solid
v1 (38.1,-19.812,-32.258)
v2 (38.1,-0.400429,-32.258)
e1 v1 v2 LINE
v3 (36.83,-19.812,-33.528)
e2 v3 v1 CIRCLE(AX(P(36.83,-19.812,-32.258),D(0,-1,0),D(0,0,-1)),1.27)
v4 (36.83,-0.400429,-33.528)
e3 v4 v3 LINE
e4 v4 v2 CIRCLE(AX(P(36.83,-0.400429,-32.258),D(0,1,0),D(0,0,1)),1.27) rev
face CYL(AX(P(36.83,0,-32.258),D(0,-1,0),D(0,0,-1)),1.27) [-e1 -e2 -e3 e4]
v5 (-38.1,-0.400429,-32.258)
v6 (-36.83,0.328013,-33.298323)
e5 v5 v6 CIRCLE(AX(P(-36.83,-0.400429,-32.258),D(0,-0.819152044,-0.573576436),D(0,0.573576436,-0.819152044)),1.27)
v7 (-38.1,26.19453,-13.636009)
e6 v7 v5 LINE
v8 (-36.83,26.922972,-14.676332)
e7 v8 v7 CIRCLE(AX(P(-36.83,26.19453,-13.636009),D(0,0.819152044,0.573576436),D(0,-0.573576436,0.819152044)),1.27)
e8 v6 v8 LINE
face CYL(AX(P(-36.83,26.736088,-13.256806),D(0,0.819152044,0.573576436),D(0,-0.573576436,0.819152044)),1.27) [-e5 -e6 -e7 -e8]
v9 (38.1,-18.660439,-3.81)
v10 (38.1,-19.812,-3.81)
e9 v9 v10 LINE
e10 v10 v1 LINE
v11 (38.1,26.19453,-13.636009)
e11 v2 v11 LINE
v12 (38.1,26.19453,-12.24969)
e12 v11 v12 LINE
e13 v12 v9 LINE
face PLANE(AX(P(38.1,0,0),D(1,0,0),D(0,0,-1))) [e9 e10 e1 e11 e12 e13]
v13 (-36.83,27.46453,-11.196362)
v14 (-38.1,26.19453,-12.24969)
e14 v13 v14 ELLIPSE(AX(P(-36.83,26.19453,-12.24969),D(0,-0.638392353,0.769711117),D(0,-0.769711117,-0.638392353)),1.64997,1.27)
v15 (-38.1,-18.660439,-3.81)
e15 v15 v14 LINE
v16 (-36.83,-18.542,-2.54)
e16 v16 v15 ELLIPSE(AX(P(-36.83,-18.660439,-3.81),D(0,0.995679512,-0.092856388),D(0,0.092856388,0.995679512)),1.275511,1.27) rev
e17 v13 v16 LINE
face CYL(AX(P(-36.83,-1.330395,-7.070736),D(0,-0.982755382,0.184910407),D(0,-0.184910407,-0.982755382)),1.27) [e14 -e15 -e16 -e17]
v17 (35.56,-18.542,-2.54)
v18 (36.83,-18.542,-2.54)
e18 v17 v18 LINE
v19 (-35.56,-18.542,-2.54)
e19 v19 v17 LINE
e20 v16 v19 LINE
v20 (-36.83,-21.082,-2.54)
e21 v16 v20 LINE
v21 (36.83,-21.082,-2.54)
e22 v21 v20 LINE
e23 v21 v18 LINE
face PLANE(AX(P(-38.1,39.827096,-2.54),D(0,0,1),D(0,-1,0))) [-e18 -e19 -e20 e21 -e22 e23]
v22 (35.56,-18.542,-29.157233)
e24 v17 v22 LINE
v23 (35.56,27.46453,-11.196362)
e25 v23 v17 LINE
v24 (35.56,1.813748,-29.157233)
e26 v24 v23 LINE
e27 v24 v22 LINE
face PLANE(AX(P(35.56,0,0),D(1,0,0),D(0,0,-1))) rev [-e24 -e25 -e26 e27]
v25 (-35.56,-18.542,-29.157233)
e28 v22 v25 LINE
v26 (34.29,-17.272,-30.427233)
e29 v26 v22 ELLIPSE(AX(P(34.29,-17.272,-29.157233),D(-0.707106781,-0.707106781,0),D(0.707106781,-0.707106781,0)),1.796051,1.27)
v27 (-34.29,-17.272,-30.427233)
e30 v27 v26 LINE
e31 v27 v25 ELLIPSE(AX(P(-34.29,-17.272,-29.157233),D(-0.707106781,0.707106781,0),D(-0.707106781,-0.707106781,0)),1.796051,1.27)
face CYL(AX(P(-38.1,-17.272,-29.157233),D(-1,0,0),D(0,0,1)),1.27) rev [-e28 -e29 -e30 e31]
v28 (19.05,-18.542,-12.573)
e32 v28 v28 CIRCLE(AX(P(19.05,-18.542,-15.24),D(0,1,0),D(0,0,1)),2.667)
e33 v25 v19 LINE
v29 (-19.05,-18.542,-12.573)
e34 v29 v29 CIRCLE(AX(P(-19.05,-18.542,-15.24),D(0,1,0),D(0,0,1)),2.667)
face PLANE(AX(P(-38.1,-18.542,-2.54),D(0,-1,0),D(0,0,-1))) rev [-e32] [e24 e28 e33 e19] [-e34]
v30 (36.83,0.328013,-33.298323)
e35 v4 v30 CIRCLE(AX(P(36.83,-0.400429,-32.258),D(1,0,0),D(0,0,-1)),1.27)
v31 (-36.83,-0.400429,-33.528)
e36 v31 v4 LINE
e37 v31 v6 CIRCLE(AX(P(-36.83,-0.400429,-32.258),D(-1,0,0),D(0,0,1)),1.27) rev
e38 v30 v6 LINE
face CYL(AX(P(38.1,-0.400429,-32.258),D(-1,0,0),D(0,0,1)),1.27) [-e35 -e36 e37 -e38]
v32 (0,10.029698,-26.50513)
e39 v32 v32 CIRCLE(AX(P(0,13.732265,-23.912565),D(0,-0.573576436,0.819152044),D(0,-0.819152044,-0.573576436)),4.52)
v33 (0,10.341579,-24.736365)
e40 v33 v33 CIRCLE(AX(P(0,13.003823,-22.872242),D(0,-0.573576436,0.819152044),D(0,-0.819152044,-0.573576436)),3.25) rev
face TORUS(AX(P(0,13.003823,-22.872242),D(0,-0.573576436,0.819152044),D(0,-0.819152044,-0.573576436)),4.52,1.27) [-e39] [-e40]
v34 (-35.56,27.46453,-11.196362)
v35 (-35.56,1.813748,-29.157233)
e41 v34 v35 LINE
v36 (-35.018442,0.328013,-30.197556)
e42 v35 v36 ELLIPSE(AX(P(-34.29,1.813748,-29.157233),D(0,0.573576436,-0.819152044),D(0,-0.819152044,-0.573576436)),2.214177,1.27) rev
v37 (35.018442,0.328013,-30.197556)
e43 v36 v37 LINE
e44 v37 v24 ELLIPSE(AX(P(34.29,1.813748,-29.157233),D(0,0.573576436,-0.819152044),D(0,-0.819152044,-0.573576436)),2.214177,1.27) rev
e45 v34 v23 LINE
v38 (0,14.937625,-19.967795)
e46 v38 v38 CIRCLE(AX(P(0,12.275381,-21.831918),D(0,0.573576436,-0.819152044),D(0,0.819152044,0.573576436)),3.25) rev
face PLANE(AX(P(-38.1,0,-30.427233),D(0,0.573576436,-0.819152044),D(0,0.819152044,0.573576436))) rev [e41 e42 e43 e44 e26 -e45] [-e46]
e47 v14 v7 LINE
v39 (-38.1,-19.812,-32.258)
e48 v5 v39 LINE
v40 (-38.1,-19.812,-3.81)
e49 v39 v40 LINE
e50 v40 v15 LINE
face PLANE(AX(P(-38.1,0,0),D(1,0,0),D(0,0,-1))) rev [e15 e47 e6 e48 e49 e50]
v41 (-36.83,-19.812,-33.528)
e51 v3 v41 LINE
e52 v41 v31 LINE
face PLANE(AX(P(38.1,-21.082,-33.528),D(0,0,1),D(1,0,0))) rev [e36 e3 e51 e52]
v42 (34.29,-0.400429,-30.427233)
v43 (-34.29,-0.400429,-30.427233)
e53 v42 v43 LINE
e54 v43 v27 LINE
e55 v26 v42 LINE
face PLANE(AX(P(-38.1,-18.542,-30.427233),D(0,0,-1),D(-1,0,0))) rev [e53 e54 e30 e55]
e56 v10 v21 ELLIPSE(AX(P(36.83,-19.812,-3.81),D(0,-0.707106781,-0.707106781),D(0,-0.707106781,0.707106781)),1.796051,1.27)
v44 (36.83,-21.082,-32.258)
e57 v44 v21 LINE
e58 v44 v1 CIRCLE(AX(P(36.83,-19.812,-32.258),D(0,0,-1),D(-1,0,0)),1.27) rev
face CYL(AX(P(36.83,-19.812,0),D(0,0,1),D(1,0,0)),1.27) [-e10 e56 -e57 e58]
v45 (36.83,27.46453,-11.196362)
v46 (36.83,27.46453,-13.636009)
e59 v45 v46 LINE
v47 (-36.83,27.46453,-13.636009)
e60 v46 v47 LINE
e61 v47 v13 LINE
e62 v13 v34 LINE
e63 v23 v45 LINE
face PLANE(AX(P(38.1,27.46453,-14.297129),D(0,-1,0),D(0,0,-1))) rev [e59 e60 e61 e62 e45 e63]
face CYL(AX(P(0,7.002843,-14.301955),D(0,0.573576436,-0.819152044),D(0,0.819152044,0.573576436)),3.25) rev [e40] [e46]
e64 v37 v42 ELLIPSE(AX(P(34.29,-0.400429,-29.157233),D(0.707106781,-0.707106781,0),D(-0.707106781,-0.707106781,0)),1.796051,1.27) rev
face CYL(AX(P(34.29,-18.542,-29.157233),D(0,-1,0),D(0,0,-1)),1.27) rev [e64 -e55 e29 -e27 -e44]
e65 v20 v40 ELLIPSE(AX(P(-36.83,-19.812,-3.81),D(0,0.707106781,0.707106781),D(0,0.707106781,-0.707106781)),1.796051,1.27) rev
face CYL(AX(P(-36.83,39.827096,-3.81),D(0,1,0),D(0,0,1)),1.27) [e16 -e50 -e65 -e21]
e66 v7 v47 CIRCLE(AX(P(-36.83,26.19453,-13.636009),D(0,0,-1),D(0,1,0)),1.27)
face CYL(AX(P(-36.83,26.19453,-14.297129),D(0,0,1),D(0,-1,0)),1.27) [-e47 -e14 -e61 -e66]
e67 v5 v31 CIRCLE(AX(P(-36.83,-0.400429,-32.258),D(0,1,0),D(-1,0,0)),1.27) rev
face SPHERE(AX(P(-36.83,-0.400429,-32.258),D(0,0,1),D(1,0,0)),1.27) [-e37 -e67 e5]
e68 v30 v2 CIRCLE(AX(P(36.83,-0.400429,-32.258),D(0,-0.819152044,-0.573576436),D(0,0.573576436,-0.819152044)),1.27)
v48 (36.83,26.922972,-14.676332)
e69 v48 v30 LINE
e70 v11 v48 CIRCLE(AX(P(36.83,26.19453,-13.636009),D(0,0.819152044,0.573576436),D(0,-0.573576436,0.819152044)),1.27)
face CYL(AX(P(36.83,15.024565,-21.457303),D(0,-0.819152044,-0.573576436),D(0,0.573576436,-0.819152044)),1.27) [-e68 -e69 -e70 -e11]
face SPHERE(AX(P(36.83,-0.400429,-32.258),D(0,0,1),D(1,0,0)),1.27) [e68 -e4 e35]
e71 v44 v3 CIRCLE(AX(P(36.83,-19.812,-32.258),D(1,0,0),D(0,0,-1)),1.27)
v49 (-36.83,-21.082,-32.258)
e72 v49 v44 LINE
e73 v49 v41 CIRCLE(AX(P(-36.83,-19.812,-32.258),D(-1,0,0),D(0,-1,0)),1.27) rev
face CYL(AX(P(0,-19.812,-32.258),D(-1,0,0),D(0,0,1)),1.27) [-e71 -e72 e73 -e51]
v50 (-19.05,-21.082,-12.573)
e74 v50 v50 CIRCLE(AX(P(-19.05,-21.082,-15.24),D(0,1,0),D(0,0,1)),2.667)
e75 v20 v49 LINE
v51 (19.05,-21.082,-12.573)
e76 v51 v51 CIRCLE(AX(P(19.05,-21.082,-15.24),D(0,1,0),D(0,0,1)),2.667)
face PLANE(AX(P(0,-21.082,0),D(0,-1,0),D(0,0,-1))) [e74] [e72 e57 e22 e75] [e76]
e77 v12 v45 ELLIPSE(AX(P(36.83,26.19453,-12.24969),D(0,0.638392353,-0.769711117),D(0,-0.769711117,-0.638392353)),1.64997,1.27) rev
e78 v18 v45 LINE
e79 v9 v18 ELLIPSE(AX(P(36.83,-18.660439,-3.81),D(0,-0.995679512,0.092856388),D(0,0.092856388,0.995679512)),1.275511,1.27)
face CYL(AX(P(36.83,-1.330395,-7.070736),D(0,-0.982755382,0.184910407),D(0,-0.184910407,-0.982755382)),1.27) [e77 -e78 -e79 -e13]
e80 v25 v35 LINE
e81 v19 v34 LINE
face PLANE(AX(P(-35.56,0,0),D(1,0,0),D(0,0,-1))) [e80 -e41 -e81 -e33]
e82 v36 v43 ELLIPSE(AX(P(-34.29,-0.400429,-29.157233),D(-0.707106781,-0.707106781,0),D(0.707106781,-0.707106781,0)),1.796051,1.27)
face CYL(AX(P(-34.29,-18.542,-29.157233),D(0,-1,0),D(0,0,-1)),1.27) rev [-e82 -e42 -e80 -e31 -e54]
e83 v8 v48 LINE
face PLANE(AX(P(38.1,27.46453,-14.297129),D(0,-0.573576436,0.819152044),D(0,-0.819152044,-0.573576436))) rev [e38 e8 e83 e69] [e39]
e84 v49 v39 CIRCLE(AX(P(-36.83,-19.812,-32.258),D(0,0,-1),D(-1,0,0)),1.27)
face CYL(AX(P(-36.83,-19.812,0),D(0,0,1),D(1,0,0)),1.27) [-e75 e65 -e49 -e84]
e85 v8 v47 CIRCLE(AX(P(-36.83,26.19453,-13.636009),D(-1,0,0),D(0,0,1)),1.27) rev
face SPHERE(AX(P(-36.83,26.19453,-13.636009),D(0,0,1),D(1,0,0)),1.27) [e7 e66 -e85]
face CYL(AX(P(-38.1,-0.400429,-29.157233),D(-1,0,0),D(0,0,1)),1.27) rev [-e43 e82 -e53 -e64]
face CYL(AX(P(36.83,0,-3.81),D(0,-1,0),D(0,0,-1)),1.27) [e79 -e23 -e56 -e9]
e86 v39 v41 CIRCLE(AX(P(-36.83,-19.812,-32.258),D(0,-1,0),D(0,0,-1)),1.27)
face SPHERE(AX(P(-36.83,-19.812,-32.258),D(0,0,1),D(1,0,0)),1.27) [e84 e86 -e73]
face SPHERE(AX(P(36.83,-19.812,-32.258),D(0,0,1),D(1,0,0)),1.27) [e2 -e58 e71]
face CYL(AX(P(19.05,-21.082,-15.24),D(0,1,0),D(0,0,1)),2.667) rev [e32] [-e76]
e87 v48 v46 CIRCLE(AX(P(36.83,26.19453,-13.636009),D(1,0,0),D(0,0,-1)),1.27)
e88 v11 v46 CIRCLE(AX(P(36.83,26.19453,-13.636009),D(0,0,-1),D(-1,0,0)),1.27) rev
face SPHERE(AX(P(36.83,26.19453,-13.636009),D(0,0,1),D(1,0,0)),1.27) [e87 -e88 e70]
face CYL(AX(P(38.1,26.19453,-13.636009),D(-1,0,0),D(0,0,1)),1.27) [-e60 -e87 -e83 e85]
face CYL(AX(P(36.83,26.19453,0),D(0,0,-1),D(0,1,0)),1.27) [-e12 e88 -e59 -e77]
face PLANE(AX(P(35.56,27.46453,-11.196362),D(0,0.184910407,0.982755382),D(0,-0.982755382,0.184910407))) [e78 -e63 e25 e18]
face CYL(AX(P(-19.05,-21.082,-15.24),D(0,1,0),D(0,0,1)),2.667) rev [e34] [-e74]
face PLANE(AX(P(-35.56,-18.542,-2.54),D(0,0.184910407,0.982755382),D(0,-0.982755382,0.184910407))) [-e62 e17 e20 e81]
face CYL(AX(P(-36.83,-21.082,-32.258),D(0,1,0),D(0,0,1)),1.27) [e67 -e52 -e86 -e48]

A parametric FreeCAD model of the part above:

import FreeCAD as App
import Part
import Sketcher
Q = App.Units.Quantity


def edges_at(feature, points):
    """Names of the edges that pass closest to the given points."""
    edges = feature.Shape.Edges
    near = lambda p: min(range(len(edges)), key=lambda i: edges[i].distToShape(Part.Vertex(*p))[0])
    return sorted({f"Edge{near(p) + 1}" for p in points})


def add_polygon(sketch, points):
    """Adds a closed chain of lines whose ends are joined by coincident constraints."""
    first, n = sketch.GeometryCount, len(points)
    for a, b in zip(points, points[1:] + points[:1]):
        sketch.addGeometry(Part.LineSegment(App.Vector(*a, 0), App.Vector(*b, 0)), False)
    for i in range(n):
        sketch.addConstraint(Sketcher.Constraint("Coincident", first + i, 2, first + (i + 1) % n, 1))

doc = App.newDocument("Part")
body = doc.addObject("PartDesign::Body", "Body")

sketch1 = doc.addObject("Sketcher::SketchObject", "Sketch")
body.addObject(sketch1)
sketch1.AttachmentSupport = (doc.YZ_Plane, [""])
sketch1.MapMode = "FlatFace"
add_polygon(sketch1, [(0, 0), (0, -34), (27, -14), (27, 0)])
sketch1.addConstraint([
    Sketcher.Constraint("Vertical", 0),
    Sketcher.Constraint("Vertical", 2),
    Sketcher.Constraint("Horizontal", 3),
    Sketcher.Constraint("Coincident", 3, 2, -1, 1),
    Sketcher.Constraint("Angle", 1, Q("35 deg")),
    Sketcher.Constraint("DistanceY", 0, 2, 0, 1, Q("1.32 in")),
    Sketcher.Constraint("Distance", 1, Q("1.32 in")),
])
pad1 = doc.addObject("PartDesign::Pad", "Pad")
body.addObject(pad1)
pad1.Profile = sketch1
pad1.Length = Q("3 in")
pad1.Midplane = True

sketch2 = doc.addObject("Sketcher::SketchObject", "Sketch001")
body.addObject(sketch2)
sketch2.AttachmentSupport = (doc.XZ_Plane, [""])
sketch2.MapMode = "FlatFace"
add_polygon(sketch2, [(-38, 0), (-38, -34), (38, -34), (38, 0)])
sketch2.addConstraint([
    Sketcher.Constraint("Vertical", 0),
    Sketcher.Constraint("Horizontal", 1),
    Sketcher.Constraint("Vertical", 2),
    Sketcher.Constraint("Horizontal", 3),
    Sketcher.Constraint("Symmetric", 2, 2, 3, 2, -1, 1),
    Sketcher.Constraint("DistanceX", 1, 1, 1, 2, Q("3 in")),
    Sketcher.Constraint("DistanceY", 0, 2, 0, 1, Q("1.32 in")),
])
pad2 = doc.addObject("PartDesign::Pad", "Pad001")
body.addObject(pad2)
pad2.Profile = sketch2
pad2.Length = Q("0.83 in")

sketch3 = doc.addObject("Sketcher::SketchObject", "Sketch002")
body.addObject(sketch3)
sketch3.AttachmentSupport = (doc.YZ_Plane, [""])
sketch3.MapMode = "FlatFace"
sketch3.AttachmentOffset = App.Placement(App.Vector(0, 0, 1.5 * 25.4), App.Rotation())
add_polygon(sketch3, [(40, -3), (-19, -3), (-19, -30), (0, -30)])
sketch3.addConstraint([
    Sketcher.Constraint("Horizontal", 0),
    Sketcher.Constraint("Vertical", 1),
    Sketcher.Constraint("Horizontal", 2),
    Sketcher.Constraint("PointOnObject", 2, 2, -2),
    Sketcher.Constraint("Angle", 3, Q("35 deg")),
    Sketcher.Constraint("DistanceX", 2, 1, 2, 2, Q("0.73 in")),
    Sketcher.Constraint("DistanceY", 0, 2, -1, 1, Q("0.1 in")),
    Sketcher.Constraint("DistanceX", 0, 2, 0, 1, Q("58.369096 mm")),
])
pocket1 = doc.addObject("PartDesign::Pocket", "Pocket")
body.addObject(pocket1)
pocket1.Profile = sketch3
pocket1.Type = "ThroughAll"

sketch4 = doc.addObject("Sketcher::SketchObject", "Sketch003")
body.addObject(sketch4)
sketch4.AttachmentSupport = (doc.XZ_Plane, [""])
sketch4.MapMode = "FlatFace"
sketch4.AttachmentOffset = App.Placement(App.Vector(0, 0, 0.73 * 25.4), App.Rotation())
sketch4.addGeometry([
    Part.Circle(App.Vector(19.1, -15.2, 0), App.Vector(0, 0, 1), 2.7),
    Part.Circle(App.Vector(-19.1, -15.2, 0), App.Vector(0, 0, 1), 2.7),
], False)
sketch4.addConstraint([
    Sketcher.Constraint("Equal", 0, 1),
    Sketcher.Constraint("Symmetric", 0, 3, 1, 3, -2),
    Sketcher.Constraint("Diameter", 0, Q("0.21 in")),
    Sketcher.Constraint("DistanceY", 0, 3, -1, 1, Q("0.6 in")),
    Sketcher.Constraint("DistanceX", 1, 3, 0, 3, Q("1.5 in")),
])
pocket2 = doc.addObject("PartDesign::Pocket", "Pocket001")
body.addObject(pocket2)
pocket2.Profile = sketch4
pocket2.Type = "ThroughAll"
pocket2.Reversed = True

sketch5 = doc.addObject("Sketcher::SketchObject", "Sketch004")
body.addObject(sketch5)
sketch5.Placement = App.Placement(App.Vector(0, 15.753007, -22.497626), App.Rotation(App.Vector(-1, 0, 0), App.Vector(0, 0.819152044, 0.573576436), App.Vector(0, 0.573576436, -0.819152044), "ZXY"))
sketch5.addGeometry(Part.Circle(App.Vector(0, -2.5, 0), App.Vector(0, 0, 1), 3.2), False)
sketch5.addConstraint([
    Sketcher.Constraint("PointOnObject", 0, 3, -2),
    Sketcher.Constraint("Diameter", 0, Q("6.5 mm")),
    Sketcher.Constraint("DistanceY", 0, 3, -1, 1, Q("2.466871 mm")),
])
pocket3 = doc.addObject("PartDesign::Pocket", "Pocket002")
body.addObject(pocket3)
pocket3.Profile = sketch5
pocket3.Length = Q("0.1 in")

sketch6 = doc.addObject("Sketcher::SketchObject", "Sketch005")
body.addObject(sketch6)
sketch6.AttachmentSupport = (doc.XY_Plane, [""])
sketch6.MapMode = "FlatFace"
add_polygon(sketch6, [(-40, 30), (-40, -22), (40, -22), (40, 30)])
sketch6.addConstraint([
    Sketcher.Constraint("Vertical", 0),
    Sketcher.Constraint("Horizontal", 1),
    Sketcher.Constraint("Vertical", 2),
    Sketcher.Constraint("Horizontal", 3),
    Sketcher.Constraint("DistanceX", 1, 1, 1, 2, Q("79.969594 mm")),
    Sketcher.Constraint("DistanceY", 0, 2, 0, 1, Q("52.206217 mm")),
    Sketcher.Constraint("DistanceX", 0, 2, -1, 1, Q("40.21539 mm")),
    Sketcher.Constraint("DistanceY", 0, 2, -1, 1, Q("22.264414 mm")),
])
pocket4 = doc.addObject("PartDesign::Pocket", "Pocket003")
body.addObject(pocket4)
pocket4.Profile = sketch6
pocket4.Length = Q("0.1 in")

sketch7 = doc.addObject("Sketcher::SketchObject", "Sketch006")
body.addObject(sketch7)
sketch7.AttachmentSupport = (doc.YZ_Plane, [""])
sketch7.MapMode = "FlatFace"
sketch7.AttachmentOffset = App.Placement(App.Vector(0, 0, 1.5 * 25.4), App.Rotation())
add_polygon(sketch7, [(-19, -3), (-19, -30), (0, -30), (27, -11)])
sketch7.addConstraint([
    Sketcher.Constraint("Vertical", 0),
    Sketcher.Constraint("Horizontal", 1),
    Sketcher.Constraint("PointOnObject", 1, 2, -2),
    Sketcher.Constraint("Angle", 2, Q("35 deg")),
    Sketcher.Constraint("DistanceX", 1, 1, 1, 2, Q("0.73 in")),
    Sketcher.Constraint("DistanceY", 3, 2, -1, 1, Q("0.1 in")),
    Sketcher.Constraint("Distance", 2, Q("1.32 in")),
    Sketcher.Constraint("DistanceY", 0, 2, 0, 1, Q("27.887233 mm")),
])
pad3 = doc.addObject("PartDesign::Pad", "Pad002")
body.addObject(pad3)
pad3.Profile = sketch7
pad3.Length = Q("0.1 in")
pad3.Reversed = True

sketch8 = doc.addObject("Sketcher::SketchObject", "Sketch007")
body.addObject(sketch8)
sketch8.AttachmentSupport = (doc.YZ_Plane, [""])
sketch8.MapMode = "FlatFace"
sketch8.AttachmentOffset = App.Placement(App.Vector(0, 0, -1.5 * 25.4), App.Rotation())
add_polygon(sketch8, [(27, -11), (0, -30), (-19, -30), (-19, -3)])
sketch8.addConstraint([
    Sketcher.Constraint("Horizontal", 1),
    Sketcher.Constraint("Vertical", 2),
    Sketcher.Constraint("PointOnObject", 0, 2, -2),
    Sketcher.Constraint("Angle", 0, Q("-145 deg")),
    Sketcher.Constraint("DistanceX", 1, 2, 1, 1, Q("0.73 in")),
    Sketcher.Constraint("DistanceY", 2, 2, -1, 1, Q("0.1 in")),
    Sketcher.Constraint("Distance", 0, Q("1.32 in")),
    Sketcher.Constraint("DistanceY", 2, 1, 2, 2, Q("27.887233 mm")),
])
pad4 = doc.addObject("PartDesign::Pad", "Pad003")
body.addObject(pad4)
pad4.Profile = sketch8
pad4.Length = Q("0.1 in")
doc.recompute()

fillet = doc.addObject("PartDesign::Fillet", "Fillet")
body.addObject(fillet)
fillet.Base = (pad4, edges_at(pad4, [
    (38.1, 13.732, -23.913),
    (38.1, 27.465, -12.747),
    (-38.1, -10.541, -33.528),
    (38.1, -10.541, -33.528),
    (0, -21.082, -33.528),
    (38.1, -21.082, -18.034),
    (-38.1, 27.465, -12.747),
    (-38.1, 13.732, -23.913),
    (0, 11.07, -25.777),
    (-38.1, -21.082, -18.034),
    (-38.1, -19.812, -2.54),
    (38.1, -19.812, -2.54),
    (0, 27.465, -14.297),
    (0, 0, -33.528),
    (35.56, -9.271, -30.427),
    (38.1, 4.461, -6.868),
    (0, -18.542, -30.427),
    (0, 0, -30.427),
    (-35.56, -9.271, -30.427),
    (-38.1, 4.461, -6.868),
]))
fillet.Radius = Q("0.05 in")

doc.recompute()
